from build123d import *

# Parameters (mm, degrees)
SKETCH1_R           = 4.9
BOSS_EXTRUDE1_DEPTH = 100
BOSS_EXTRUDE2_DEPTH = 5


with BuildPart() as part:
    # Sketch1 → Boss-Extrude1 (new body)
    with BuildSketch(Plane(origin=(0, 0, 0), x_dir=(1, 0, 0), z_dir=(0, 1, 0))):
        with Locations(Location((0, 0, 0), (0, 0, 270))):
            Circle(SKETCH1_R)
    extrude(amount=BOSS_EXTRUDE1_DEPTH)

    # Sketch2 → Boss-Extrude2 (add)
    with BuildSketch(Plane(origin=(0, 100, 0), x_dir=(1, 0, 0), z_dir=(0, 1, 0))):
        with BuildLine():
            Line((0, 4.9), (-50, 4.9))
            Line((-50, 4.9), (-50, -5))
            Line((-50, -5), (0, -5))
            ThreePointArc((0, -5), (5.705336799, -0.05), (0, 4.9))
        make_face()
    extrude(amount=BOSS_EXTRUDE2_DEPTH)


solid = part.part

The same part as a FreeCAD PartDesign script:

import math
import FreeCAD as App
import Part
import Sketcher

V = App.Vector
Q = App.Units.Quantity

doc = App.newDocument("Part")
body = doc.addObject("PartDesign::Body", "Body")

sketch1 = body.newObject("Sketcher::SketchObject", "Sketch")
sketch1.AttachmentSupport = (doc.getObject("XZ_Plane"), [""])
sketch1.MapMode = "FlatFace"
sketch1.addGeometry(Part.Circle(V(0, 0, 0), V(0, 0, 1), 4.9), False)
sketch1.addConstraint([
    Sketcher.Constraint("Coincident", 0, 3, -1, 1),
    Sketcher.Constraint("Diameter", 0, Q("9.8 mm")),
])
pad1 = body.newObject("PartDesign::Pad", "Pad")
pad1.Profile = sketch1
pad1.Length = 100
pad1.Reversed = True

sketch2 = body.newObject("Sketcher::SketchObject", "Sketch001")
sketch2.AttachmentSupport = (doc.getObject("XZ_Plane"), [""])
sketch2.MapMode = "FlatFace"
sketch2.AttachmentOffset = App.Placement(V(0, 0, -100), App.Rotation())
sketch2.addGeometry([
    Part.LineSegment(V(0, -5, 0), V(-50, -5, 0)),
    Part.LineSegment(V(-50, -5, 0), V(-50, 5, 0)),
    Part.LineSegment(V(-50, 5, 0), V(0, 5, 0)),
    Part.ArcOfCircle(Part.Circle(V(1, 0, 0), V(0, 0, 1), 5), math.radians(-98), math.radians(98)),
], False)
sketch2.addConstraint([
    Sketcher.Constraint("Coincident", 0, 2, 1, 1),
    Sketcher.Constraint("Coincident", 1, 2, 2, 1),
    Sketcher.Constraint("Coincident", 2, 2, 3, 2),
    Sketcher.Constraint("Coincident", 3, 1, 0, 1),
    Sketcher.Constraint("Horizontal", 0),
    Sketcher.Constraint("Vertical", 1),
    Sketcher.Constraint("Horizontal", 2),
    Sketcher.Constraint("PointOnObject", 2, 2, -2),
    Sketcher.Constraint("PointOnObject", 3, 1, -2),
    Sketcher.Constraint("Radius", 3, Q("5 mm")),
    Sketcher.Constraint("DistanceX", 0, 2, 0, 1, Q("50 mm")),
    Sketcher.Constraint("DistanceY", 1, 1, 1, 2, Q("9.9 mm")),
    Sketcher.Constraint("DistanceY", -1, 1, 1, 2, Q("5 mm")),
])
pad2 = body.newObject("PartDesign::Pad", "Pad001")
pad2.Profile = sketch2
pad2.Length = 5
pad2.Reversed = True

doc.recompute()
